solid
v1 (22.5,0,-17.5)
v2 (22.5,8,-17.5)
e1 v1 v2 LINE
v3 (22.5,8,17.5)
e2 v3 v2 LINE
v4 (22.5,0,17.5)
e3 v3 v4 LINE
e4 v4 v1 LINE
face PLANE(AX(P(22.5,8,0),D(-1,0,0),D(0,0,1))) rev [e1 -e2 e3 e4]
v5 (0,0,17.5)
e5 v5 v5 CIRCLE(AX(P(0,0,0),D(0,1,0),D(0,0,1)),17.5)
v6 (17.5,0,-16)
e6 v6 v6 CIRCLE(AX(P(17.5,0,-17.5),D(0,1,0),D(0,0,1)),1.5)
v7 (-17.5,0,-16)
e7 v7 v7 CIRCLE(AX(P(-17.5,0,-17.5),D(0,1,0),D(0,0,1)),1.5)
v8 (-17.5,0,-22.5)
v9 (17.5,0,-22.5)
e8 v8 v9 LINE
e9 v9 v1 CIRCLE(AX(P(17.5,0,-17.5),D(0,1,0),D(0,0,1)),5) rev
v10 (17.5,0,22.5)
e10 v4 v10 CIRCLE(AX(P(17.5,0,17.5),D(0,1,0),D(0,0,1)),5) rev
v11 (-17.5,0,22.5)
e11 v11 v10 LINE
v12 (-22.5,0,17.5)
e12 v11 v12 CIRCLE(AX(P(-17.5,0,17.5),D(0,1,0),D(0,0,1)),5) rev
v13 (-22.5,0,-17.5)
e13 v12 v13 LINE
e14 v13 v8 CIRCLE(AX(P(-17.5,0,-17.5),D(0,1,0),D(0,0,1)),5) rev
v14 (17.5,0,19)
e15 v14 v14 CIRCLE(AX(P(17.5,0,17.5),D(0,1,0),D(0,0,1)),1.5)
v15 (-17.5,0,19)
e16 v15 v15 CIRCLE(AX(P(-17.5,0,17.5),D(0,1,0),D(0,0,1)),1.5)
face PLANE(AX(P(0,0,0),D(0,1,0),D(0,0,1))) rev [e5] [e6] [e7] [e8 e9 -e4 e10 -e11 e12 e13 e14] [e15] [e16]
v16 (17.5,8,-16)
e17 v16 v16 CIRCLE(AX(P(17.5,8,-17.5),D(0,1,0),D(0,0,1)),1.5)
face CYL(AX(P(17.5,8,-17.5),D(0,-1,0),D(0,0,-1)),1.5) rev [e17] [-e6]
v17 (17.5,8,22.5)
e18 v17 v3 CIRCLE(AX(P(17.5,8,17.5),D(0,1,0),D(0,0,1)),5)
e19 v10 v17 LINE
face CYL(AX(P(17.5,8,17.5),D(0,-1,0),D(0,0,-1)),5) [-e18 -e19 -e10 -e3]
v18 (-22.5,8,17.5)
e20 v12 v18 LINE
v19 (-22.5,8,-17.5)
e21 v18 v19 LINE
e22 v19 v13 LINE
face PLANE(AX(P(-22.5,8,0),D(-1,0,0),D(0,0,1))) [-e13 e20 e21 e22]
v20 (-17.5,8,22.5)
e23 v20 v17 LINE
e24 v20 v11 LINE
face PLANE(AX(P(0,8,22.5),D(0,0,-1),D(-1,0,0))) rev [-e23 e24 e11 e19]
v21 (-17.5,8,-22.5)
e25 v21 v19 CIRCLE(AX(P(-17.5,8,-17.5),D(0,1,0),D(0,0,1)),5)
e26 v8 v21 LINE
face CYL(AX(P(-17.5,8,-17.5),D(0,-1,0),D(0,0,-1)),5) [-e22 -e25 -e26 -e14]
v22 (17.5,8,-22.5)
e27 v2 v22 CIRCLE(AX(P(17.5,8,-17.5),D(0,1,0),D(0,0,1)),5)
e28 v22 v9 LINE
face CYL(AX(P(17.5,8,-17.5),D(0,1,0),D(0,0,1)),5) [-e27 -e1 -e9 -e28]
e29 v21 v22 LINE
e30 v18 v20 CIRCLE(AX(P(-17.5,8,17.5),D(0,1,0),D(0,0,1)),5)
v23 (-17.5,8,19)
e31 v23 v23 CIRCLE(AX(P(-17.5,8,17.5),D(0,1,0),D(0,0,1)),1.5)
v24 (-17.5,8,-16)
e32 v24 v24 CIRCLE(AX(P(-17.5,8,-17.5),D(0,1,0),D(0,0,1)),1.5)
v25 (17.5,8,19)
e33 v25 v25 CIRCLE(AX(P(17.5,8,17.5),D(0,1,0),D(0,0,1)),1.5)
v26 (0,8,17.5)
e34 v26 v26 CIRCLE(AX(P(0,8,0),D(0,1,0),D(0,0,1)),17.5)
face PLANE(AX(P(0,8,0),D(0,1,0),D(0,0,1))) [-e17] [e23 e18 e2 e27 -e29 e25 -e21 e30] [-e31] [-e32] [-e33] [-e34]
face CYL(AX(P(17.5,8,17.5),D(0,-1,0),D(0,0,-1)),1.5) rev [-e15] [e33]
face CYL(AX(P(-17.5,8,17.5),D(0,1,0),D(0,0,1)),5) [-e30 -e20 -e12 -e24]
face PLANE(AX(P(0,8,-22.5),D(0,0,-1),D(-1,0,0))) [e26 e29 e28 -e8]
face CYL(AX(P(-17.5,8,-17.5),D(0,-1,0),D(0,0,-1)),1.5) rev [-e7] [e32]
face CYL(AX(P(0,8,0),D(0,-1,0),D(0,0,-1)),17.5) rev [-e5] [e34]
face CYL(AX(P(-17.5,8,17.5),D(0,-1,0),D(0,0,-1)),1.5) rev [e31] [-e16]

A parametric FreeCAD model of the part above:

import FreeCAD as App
import Part
import Sketcher
Q = App.Units.Quantity


def edges_at(feature, points):
    """Names of the edges that pass closest to the given points."""
    edges = feature.Shape.Edges
    near = lambda p: min(range(len(edges)), key=lambda i: edges[i].distToShape(Part.Vertex(*p))[0])
    return sorted({f"Edge{near(p) + 1}" for p in points})

doc = App.newDocument("Part")
body = doc.addObject("PartDesign::Body", "Body")

# Sketch on XZ plane
sketch1 = doc.addObject("Sketcher::SketchObject", "Sketch")
body.addObject(sketch1)
sketch1.AttachmentSupport = (doc.XZ_Plane, [""])
sketch1.MapMode = "FlatFace"
sketch1.addGeometry([
    Part.LineSegment(App.Vector(-22.5, -22.5, 0), App.Vector(-22.5, 22.5, 0)),  # 0
    Part.LineSegment(App.Vector(-22.5, 22.5, 0), App.Vector(22.5, 22.5, 0)),  # 1
    Part.LineSegment(App.Vector(22.5, 22.5, 0), App.Vector(22.5, -22.5, 0)),  # 2
    Part.LineSegment(App.Vector(22.5, -22.5, 0), App.Vector(-22.5, -22.5, 0)),  # 3
    Part.Circle(App.Vector(-17.5, 17.5, 0), App.Vector(0, 0, 1), 1.5),  # 4
    Part.Circle(App.Vector(17.5, 17.5, 0), App.Vector(0, 0, 1), 1.5),  # 5
    Part.Circle(App.Vector(-17.5, -17.5, 0), App.Vector(0, 0, 1), 1.5),  # 6
    Part.Circle(App.Vector(0, 0, 0), App.Vector(0, 0, 1), 17.5),  # 7
    Part.Circle(App.Vector(17.5, -17.5, 0), App.Vector(0, 0, 1), 1.5),  # 8
], False)
sketch1.addConstraint([
    Sketcher.Constraint("Coincident", 0, 2, 1, 1),
    Sketcher.Constraint("Coincident", 1, 2, 2, 1),
    Sketcher.Constraint("Coincident", 2, 2, 3, 1),
    Sketcher.Constraint("Coincident", 3, 2, 0, 1),
    Sketcher.Constraint("Vertical", 0),
    Sketcher.Constraint("Horizontal", 1),
    Sketcher.Constraint("Vertical", 2),
    Sketcher.Constraint("Horizontal", 3),
    Sketcher.Constraint("Coincident", 7, 3, -1, 1),
    Sketcher.Constraint("Equal", 4, 5),
    Sketcher.Constraint("Equal", 5, 6),
    Sketcher.Constraint("Equal", 6, 8),
    Sketcher.Constraint("Symmetric", 5, 3, 6, 3, -1, 1),
    Sketcher.Constraint("Symmetric", 4, 3, 8, 3, -1, 1),
    Sketcher.Constraint("Symmetric", 0, 2, 2, 2, -1, 1),
    Sketcher.Constraint("Symmetric", 4, 3, 5, 3, -2),
    Sketcher.Constraint("Equal", 3, 0),
    Sketcher.Constraint("Diameter", 4, Q("3 mm")),
    Sketcher.Constraint("Diameter", 7, Q("35 mm")),
    Sketcher.Constraint("DistanceX", 1, 1, 1, 2, Q("45 mm")),
    Sketcher.Constraint("DistanceX", 4, 3, 5, 3, Q("35 mm")),
    Sketcher.Constraint("DistanceY", 6, 3, 4, 3, Q("35 mm")),
])
pad1 = doc.addObject("PartDesign::Pad", "Pad")
body.addObject(pad1)
pad1.Profile = sketch1
pad1.Length = 8
pad1.Reversed = True
doc.recompute()

fillet = doc.addObject("PartDesign::Fillet", "Fillet")
body.addObject(fillet)
fillet.Base = (pad1, edges_at(pad1, [
    (-22.5, 4, 22.5),
    (-22.5, 4, -22.5),
    (22.5, 4, -22.5),
    (22.5, 4, 22.5),
]))
fillet.Radius = 5

doc.recompute()
